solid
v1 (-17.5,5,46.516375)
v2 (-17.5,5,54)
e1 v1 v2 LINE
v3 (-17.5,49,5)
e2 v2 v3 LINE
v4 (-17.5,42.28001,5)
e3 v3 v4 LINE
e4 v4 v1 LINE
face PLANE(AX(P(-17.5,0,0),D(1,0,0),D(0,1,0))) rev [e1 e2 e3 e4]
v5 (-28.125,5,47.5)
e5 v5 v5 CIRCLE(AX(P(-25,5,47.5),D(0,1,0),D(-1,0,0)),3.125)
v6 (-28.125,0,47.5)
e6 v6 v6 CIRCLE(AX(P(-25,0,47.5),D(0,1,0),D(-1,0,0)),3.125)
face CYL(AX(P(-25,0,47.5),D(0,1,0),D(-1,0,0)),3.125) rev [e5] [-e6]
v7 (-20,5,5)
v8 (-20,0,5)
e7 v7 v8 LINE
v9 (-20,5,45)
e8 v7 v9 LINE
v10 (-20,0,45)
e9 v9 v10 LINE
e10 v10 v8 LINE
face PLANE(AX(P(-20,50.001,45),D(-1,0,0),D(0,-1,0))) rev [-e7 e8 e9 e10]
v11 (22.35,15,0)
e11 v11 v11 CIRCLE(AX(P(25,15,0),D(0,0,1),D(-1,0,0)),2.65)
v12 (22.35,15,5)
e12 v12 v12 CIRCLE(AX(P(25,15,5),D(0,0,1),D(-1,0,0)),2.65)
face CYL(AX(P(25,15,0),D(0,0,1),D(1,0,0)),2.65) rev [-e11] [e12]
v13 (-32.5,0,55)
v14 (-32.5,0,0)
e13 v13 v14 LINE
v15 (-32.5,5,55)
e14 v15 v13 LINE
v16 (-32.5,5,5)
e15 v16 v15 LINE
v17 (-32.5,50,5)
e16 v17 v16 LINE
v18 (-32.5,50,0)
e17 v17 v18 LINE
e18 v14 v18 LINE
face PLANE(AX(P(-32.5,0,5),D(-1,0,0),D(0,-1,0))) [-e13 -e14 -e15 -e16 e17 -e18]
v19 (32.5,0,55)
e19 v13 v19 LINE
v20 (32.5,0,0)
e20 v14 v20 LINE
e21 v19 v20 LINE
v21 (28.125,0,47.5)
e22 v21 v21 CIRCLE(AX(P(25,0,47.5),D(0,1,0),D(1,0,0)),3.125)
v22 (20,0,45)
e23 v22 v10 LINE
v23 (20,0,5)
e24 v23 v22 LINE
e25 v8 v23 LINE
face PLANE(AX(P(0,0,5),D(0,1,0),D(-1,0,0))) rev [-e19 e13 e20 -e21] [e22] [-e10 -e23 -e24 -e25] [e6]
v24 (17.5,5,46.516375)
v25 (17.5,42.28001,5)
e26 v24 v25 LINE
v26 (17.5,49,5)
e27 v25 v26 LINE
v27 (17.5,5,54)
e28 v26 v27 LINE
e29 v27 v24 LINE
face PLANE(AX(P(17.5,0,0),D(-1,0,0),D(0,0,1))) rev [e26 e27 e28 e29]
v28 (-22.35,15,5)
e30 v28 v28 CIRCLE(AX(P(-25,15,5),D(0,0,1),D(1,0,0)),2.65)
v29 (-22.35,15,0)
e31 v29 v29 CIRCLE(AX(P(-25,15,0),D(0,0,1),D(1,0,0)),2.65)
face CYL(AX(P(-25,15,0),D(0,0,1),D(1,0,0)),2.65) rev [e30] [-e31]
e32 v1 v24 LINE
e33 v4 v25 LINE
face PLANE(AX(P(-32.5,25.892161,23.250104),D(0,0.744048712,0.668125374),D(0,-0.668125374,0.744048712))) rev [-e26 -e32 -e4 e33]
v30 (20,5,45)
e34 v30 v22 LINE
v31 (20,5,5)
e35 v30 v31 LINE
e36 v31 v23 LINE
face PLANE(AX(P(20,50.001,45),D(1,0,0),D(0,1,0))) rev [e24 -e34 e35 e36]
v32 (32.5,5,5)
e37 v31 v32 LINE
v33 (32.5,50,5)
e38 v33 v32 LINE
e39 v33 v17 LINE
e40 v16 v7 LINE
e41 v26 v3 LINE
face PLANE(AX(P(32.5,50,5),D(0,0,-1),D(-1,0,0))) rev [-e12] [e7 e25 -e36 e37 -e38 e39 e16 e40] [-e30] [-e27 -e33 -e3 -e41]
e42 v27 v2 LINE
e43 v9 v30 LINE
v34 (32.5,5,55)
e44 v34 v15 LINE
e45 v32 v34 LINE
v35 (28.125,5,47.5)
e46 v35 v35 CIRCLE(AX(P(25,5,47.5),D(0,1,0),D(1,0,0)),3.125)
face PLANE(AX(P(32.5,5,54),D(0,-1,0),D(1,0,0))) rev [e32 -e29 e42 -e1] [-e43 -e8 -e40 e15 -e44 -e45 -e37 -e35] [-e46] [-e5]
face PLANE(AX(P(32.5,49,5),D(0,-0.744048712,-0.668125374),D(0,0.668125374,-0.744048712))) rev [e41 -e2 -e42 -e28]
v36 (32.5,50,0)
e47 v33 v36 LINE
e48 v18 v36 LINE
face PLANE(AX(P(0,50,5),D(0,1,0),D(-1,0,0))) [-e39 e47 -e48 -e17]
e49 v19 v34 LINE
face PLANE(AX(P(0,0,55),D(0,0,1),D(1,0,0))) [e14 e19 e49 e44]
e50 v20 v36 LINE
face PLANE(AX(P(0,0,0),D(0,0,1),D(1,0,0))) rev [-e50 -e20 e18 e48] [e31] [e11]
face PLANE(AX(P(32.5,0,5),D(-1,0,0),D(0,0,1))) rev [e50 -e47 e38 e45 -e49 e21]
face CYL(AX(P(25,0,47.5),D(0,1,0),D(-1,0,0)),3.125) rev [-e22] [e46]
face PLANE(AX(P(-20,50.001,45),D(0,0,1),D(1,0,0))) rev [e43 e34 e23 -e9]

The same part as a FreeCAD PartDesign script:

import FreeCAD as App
import Part
import Sketcher
from FreeCAD import Vector


def add_polygon(sketch, points):
    """Adds a closed chain of lines whose ends are joined by coincident constraints."""
    first, n = sketch.GeometryCount, len(points)
    for a, b in zip(points, points[1:] + points[:1]):
        sketch.addGeometry(Part.LineSegment(App.Vector(*a, 0), App.Vector(*b, 0)), False)
    for i in range(n):
        sketch.addConstraint(Sketcher.Constraint("Coincident", first + i, 2, first + (i + 1) % n, 1))

doc = App.newDocument("Part")
body = doc.addObject("PartDesign::Body", "Body")

sketch1 = body.newObject("Sketcher::SketchObject", "Sketch")
sketch1.AttachmentSupport = (doc.getObject("XY_Plane"), [""])
sketch1.MapMode = "FlatFace"
add_polygon(sketch1, [(-32, 50), (-32, 0), (32, 0), (32, 50)])
sketch1.addConstraint([
    Sketcher.Constraint("Vertical", 0),
    Sketcher.Constraint("Horizontal", 1),
    Sketcher.Constraint("Vertical", 2),
    Sketcher.Constraint("Horizontal", 3),
    Sketcher.Constraint("Symmetric", 0, 2, 1, 2, -1, 1),
    Sketcher.Constraint("DistanceX", 1, 1, 1, 2, 65.0),
    Sketcher.Constraint("DistanceY", 0, 2, 0, 1, 50.0),
])
pad1 = body.newObject("PartDesign::Pad", "Pad")
pad1.Profile = sketch1
pad1.Length = 5

sketch2 = body.newObject("Sketcher::SketchObject", "Sketch001")
sketch2.AttachmentSupport = (doc.getObject("XY_Plane"), [""])
sketch2.MapMode = "FlatFace"
sketch2.AttachmentOffset = App.Placement(Vector(0, 0, 5), App.Rotation())
add_polygon(sketch2, [(-32, 50), (-32, 0), (32, 0), (32, 50)])
sketch2.addConstraint([
    Sketcher.Constraint("Vertical", 0),
    Sketcher.Constraint("Horizontal", 1),
    Sketcher.Constraint("Vertical", 2),
    Sketcher.Constraint("Horizontal", 3),
    Sketcher.Constraint("Symmetric", 0, 2, 1, 2, -1, 1),
    Sketcher.Constraint("DistanceX", 1, 1, 1, 2, 65.0),
    Sketcher.Constraint("DistanceY", 0, 2, 0, 1, 50.0),
])
pad2 = body.newObject("PartDesign::Pad", "Pad001")
pad2.Profile = sketch2
pad2.Length = 50

sketch3 = body.newObject("Sketcher::SketchObject", "Sketch002")
sketch3.AttachmentSupport = (doc.getObject("YZ_Plane"), [""])
sketch3.MapMode = "FlatFace"
sketch3.AttachmentOffset = App.Placement(Vector(0, 0, -32.5), App.Rotation())
add_polygon(sketch3, [(50, 55), (50, 5), (49, 5), (5, 54), (5, 55)])
sketch3.addConstraint([
    Sketcher.Constraint("Vertical", 0),
    Sketcher.Constraint("Horizontal", 1),
    Sketcher.Constraint("Vertical", 3),
    Sketcher.Constraint("Horizontal", 4),
    Sketcher.Constraint("Equal", 1, 3),
    Sketcher.Constraint("DistanceX", 1, 2, 1, 1, 1.0),
    Sketcher.Constraint("DistanceX", 4, 1, 4, 2, 45.0),
    Sketcher.Constraint("DistanceY", 0, 2, 0, 1, 50.0),
    Sketcher.Constraint("DistanceX", -1, 1, 0, 2, 50.0),
    Sketcher.Constraint("DistanceY", -1, 1, 0, 2, 5.0),
])
pocket1 = body.newObject("PartDesign::Pocket", "Pocket")
pocket1.Profile = sketch3
pocket1.Type = "ThroughAll"
pocket1.Reversed = True

sketch4 = body.newObject("Sketcher::SketchObject", "Sketch003")
sketch4.AttachmentSupport = (doc.getObject("XY_Plane"), [""])
sketch4.MapMode = "FlatFace"
sketch4.AttachmentOffset = App.Placement(Vector(0, 0, 5), App.Rotation())
sketch4.addGeometry([
    Part.Circle(Vector(-25, 15, 0), Vector(0, 0, 1), 2.6),
    Part.Circle(Vector(25, 15, 0), Vector(0, 0, 1), 2.6),
], False)
sketch4.addConstraint([
    Sketcher.Constraint("Equal", 0, 1),
    Sketcher.Constraint("Symmetric", 0, 3, 1, 3, -2),
    Sketcher.Constraint("Diameter", 0, 5.3),
    Sketcher.Constraint("DistanceX", 0, 3, -1, 1, 25.0),
    Sketcher.Constraint("DistanceY", -1, 1, 0, 3, 15.0),
])
pocket2 = body.newObject("PartDesign::Pocket", "Pocket001")
pocket2.Profile = sketch4
pocket2.Type = "ThroughAll"

sketch5 = body.newObject("Sketcher::SketchObject", "Sketch004")
sketch5.AttachmentSupport = (doc.getObject("XZ_Plane"), [""])
sketch5.MapMode = "FlatFace"
sketch5.AttachmentOffset = App.Placement(Vector(0, 0, -5), App.Rotation())
sketch5.addGeometry([
    Part.Circle(Vector(-25, 47.5, 0), Vector(0, 0, 1), 3.1),
    Part.Circle(Vector(25, 47.5, 0), Vector(0, 0, 1), 3.1),
], False)
sketch5.addConstraint([
    Sketcher.Constraint("Equal", 0, 1),
    Sketcher.Constraint("Symmetric", 0, 3, 1, 3, -2),
    Sketcher.Constraint("Diameter", 0, 6.25),
    Sketcher.Constraint("DistanceX", 0, 3, -1, 1, 25.0),
    Sketcher.Constraint("DistanceY", -1, 1, 0, 3, 47.5),
])
pocket3 = body.newObject("PartDesign::Pocket", "Pocket002")
pocket3.Profile = sketch5
pocket3.Type = "ThroughAll"
pocket3.Reversed = True

sketch6 = body.newObject("Sketcher::SketchObject", "Sketch005")
sketch6.AttachmentSupport = (doc.getObject("YZ_Plane"), [""])
sketch6.MapMode = "FlatFace"
sketch6.AttachmentOffset = App.Placement(Vector(0, 0, 32.5), App.Rotation())
add_polygon(sketch6, [(49, 5), (5, 54), (5, 5)])
sketch6.addConstraint([
    Sketcher.Constraint("Vertical", 1),
    Sketcher.Constraint("Horizontal", 2),
    Sketcher.Constraint("DistanceX", 2, 1, 2, 2, 44.0),
    Sketcher.Constraint("DistanceY", 1, 2, 1, 1, 49.0),
    Sketcher.Constraint("DistanceX", -1, 1, 0, 2, 5.0),
    Sketcher.Constraint("DistanceY", -1, 1, 0, 2, 54.0),
])
pocket4 = body.newObject("PartDesign::Pocket", "Pocket003")
pocket4.Profile = sketch6
pocket4.Length = 15

sketch7 = body.newObject("Sketcher::SketchObject", "Sketch006")
sketch7.AttachmentSupport = (doc.getObject("YZ_Plane"), [""])
sketch7.MapMode = "FlatFace"
sketch7.AttachmentOffset = App.Placement(Vector(0, 0, -32.5), App.Rotation())
add_polygon(sketch7, [(49, 5), (5, 54), (5, 5)])
sketch7.addConstraint([
    Sketcher.Constraint("Vertical", 1),
    Sketcher.Constraint("Horizontal", 2),
    Sketcher.Constraint("DistanceX", 2, 1, 2, 2, 44.0),
    Sketcher.Constraint("DistanceY", 1, 2, 1, 1, 49.0),
    Sketcher.Constraint("DistanceX", -1, 1, 0, 2, 5.0),
    Sketcher.Constraint("DistanceY", -1, 1, 0, 2, 54.0),
])
pocket5 = body.newObject("PartDesign::Pocket", "Pocket004")
pocket5.Profile = sketch7
pocket5.Length = 15
pocket5.Reversed = True

sketch8 = body.newObject("Sketcher::SketchObject", "Sketch007")
sketch8.AttachmentSupport = (doc.getObject("YZ_Plane"), [""])
sketch8.MapMode = "FlatFace"
sketch8.AttachmentOffset = App.Placement(Vector(0, 0, 32.5), App.Rotation())
add_polygon(sketch8, [(5, 5), (42, 5), (5, 47)])
sketch8.addConstraint([
    Sketcher.Constraint("Horizontal", 0),
    Sketcher.Constraint("Vertical", 2),
    Sketcher.Constraint("DistanceY", -1, 1, 0, 2, 5.0),
    Sketcher.Constraint("DistanceX", -1, 1, 1, 2, 5.0),
    Sketcher.Constraint("DistanceX", 0, 1, 0, 2, 37.28001),
    Sketcher.Constraint("DistanceY", 2, 2, 2, 1, 41.516375),
])
pocket6 = body.newObject("PartDesign::Pocket", "Pocket005")
pocket6.Profile = sketch8
pocket6.Type = "ThroughAll"

sketch9 = body.newObject("Sketcher::SketchObject", "Sketch008")
sketch9.AttachmentSupport = (doc.getObject("XZ_Plane"), [""])
sketch9.MapMode = "FlatFace"
add_polygon(sketch9, [(-20, 45), (-20, 5), (20, 5), (20, 45)])
sketch9.addConstraint([
    Sketcher.Constraint("Vertical", 0),
    Sketcher.Constraint("Horizontal", 1),
    Sketcher.Constraint("Vertical", 2),
    Sketcher.Constraint("Horizontal", 3),
    Sketcher.Constraint("Equal", 3, 0),
    Sketcher.Constraint("DistanceX", 1, 1, 1, 2, 40.0),
    Sketcher.Constraint("DistanceX", 0, 2, -1, 1, 20.0),
    Sketcher.Constraint("DistanceY", -1, 1, 0, 2, 5.0),
])
pocket7 = body.newObject("PartDesign::Pocket", "Pocket006")
pocket7.Profile = sketch9
pocket7.Type = "UpToFirst"

doc.recompute()
